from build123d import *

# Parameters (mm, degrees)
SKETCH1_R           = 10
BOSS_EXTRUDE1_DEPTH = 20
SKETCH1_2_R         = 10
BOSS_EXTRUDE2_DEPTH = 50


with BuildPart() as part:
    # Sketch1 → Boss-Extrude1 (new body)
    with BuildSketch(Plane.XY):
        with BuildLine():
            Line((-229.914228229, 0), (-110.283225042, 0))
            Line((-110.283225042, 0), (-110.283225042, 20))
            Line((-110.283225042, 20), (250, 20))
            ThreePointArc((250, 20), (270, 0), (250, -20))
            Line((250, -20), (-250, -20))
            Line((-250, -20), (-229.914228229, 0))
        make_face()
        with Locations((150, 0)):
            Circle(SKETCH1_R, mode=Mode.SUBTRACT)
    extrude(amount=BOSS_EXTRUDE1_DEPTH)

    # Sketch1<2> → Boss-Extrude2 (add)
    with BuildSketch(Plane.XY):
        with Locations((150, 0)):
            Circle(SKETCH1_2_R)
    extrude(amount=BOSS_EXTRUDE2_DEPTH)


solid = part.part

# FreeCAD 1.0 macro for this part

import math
import FreeCAD as App
import Part
import Sketcher
from FreeCAD import Vector

doc = App.newDocument("Part")
body = doc.addObject("PartDesign::Body", "Body")

# Sketch on XY plane
sketch1 = body.newObject("Sketcher::SketchObject", "Sketch")
sketch1.AttachmentSupport = (doc.getObject("XY_Plane"), [""])
sketch1.MapMode = "FlatFace"
sketch1.addGeometry([
    Part.LineSegment(Vector(-110, 0, 0), Vector(-230, 0, 0)),  # 0
    Part.LineSegment(Vector(-230, 0, 0), Vector(-250, -20, 0)),  # 1
    Part.LineSegment(Vector(-250, -20, 0), Vector(250, -20, 0)),  # 2
    Part.ArcOfCircle(Part.Circle(Vector(250, 0, 0), Vector(0, 0, 1), 20), math.radians(-90), math.radians(90)),  # 3
    Part.LineSegment(Vector(250, 20, 0), Vector(-110, 20, 0)),  # 4
    Part.LineSegment(Vector(-110, 20, 0), Vector(-110, 0, 0)),  # 5
    Part.Circle(Vector(150, 0, 0), Vector(0, 0, 1), 10),  # 6
], False)
sketch1.addConstraint([
    Sketcher.Constraint("Coincident", 0, 2, 1, 1),
    Sketcher.Constraint("Coincident", 1, 2, 2, 1),
    Sketcher.Constraint("Tangent", 2, 2, 3, 1),
    Sketcher.Constraint("Tangent", 3, 2, 4, 1),
    Sketcher.Constraint("Coincident", 4, 2, 5, 1),
    Sketcher.Constraint("Coincident", 5, 2, 0, 1),
    Sketcher.Constraint("Horizontal", 0),
    Sketcher.Constraint("Horizontal", 2),
    Sketcher.Constraint("Horizontal", 4),
    Sketcher.Constraint("Vertical", 5),
    Sketcher.Constraint("Symmetric", 1, 2, 3, 2, -1, 1),
    Sketcher.Constraint("PointOnObject", 6, 3, -1),
    Sketcher.Constraint("PointOnObject", 0, 2, -1),
    Sketcher.Constraint("Diameter", 6, 20.0),
    Sketcher.Constraint("Radius", 3, 20.0),
    Sketcher.Constraint("DistanceX", 2, 1, 2, 2, 500.0),
    Sketcher.Constraint("DistanceX", -1, 1, 6, 3, 150.0),
    Sketcher.Constraint("DistanceX", 0, 2, 0, 1, 119.631003),
    Sketcher.Constraint("DistanceX", 4, 2, 4, 1, 360.283225),
])
pad1 = body.newObject("PartDesign::Pad", "Pad")
pad1.Profile = sketch1
pad1.Length = 20

# Sketch on XY plane
sketch2 = body.newObject("Sketcher::SketchObject", "Sketch001")
sketch2.AttachmentSupport = (doc.getObject("XY_Plane"), [""])
sketch2.MapMode = "FlatFace"
sketch2.addGeometry(Part.Circle(Vector(150, 0, 0), Vector(0, 0, 1), 10), False)
sketch2.addConstraint([
    Sketcher.Constraint("PointOnObject", 0, 3, -1),
    Sketcher.Constraint("Diameter", 0, 20.0),
    Sketcher.Constraint("DistanceX", -1, 1, 0, 3, 150.0),
])
pad2 = body.newObject("PartDesign::Pad", "Pad001")
pad2.Profile = sketch2
pad2.Length = 50

doc.recompute()
